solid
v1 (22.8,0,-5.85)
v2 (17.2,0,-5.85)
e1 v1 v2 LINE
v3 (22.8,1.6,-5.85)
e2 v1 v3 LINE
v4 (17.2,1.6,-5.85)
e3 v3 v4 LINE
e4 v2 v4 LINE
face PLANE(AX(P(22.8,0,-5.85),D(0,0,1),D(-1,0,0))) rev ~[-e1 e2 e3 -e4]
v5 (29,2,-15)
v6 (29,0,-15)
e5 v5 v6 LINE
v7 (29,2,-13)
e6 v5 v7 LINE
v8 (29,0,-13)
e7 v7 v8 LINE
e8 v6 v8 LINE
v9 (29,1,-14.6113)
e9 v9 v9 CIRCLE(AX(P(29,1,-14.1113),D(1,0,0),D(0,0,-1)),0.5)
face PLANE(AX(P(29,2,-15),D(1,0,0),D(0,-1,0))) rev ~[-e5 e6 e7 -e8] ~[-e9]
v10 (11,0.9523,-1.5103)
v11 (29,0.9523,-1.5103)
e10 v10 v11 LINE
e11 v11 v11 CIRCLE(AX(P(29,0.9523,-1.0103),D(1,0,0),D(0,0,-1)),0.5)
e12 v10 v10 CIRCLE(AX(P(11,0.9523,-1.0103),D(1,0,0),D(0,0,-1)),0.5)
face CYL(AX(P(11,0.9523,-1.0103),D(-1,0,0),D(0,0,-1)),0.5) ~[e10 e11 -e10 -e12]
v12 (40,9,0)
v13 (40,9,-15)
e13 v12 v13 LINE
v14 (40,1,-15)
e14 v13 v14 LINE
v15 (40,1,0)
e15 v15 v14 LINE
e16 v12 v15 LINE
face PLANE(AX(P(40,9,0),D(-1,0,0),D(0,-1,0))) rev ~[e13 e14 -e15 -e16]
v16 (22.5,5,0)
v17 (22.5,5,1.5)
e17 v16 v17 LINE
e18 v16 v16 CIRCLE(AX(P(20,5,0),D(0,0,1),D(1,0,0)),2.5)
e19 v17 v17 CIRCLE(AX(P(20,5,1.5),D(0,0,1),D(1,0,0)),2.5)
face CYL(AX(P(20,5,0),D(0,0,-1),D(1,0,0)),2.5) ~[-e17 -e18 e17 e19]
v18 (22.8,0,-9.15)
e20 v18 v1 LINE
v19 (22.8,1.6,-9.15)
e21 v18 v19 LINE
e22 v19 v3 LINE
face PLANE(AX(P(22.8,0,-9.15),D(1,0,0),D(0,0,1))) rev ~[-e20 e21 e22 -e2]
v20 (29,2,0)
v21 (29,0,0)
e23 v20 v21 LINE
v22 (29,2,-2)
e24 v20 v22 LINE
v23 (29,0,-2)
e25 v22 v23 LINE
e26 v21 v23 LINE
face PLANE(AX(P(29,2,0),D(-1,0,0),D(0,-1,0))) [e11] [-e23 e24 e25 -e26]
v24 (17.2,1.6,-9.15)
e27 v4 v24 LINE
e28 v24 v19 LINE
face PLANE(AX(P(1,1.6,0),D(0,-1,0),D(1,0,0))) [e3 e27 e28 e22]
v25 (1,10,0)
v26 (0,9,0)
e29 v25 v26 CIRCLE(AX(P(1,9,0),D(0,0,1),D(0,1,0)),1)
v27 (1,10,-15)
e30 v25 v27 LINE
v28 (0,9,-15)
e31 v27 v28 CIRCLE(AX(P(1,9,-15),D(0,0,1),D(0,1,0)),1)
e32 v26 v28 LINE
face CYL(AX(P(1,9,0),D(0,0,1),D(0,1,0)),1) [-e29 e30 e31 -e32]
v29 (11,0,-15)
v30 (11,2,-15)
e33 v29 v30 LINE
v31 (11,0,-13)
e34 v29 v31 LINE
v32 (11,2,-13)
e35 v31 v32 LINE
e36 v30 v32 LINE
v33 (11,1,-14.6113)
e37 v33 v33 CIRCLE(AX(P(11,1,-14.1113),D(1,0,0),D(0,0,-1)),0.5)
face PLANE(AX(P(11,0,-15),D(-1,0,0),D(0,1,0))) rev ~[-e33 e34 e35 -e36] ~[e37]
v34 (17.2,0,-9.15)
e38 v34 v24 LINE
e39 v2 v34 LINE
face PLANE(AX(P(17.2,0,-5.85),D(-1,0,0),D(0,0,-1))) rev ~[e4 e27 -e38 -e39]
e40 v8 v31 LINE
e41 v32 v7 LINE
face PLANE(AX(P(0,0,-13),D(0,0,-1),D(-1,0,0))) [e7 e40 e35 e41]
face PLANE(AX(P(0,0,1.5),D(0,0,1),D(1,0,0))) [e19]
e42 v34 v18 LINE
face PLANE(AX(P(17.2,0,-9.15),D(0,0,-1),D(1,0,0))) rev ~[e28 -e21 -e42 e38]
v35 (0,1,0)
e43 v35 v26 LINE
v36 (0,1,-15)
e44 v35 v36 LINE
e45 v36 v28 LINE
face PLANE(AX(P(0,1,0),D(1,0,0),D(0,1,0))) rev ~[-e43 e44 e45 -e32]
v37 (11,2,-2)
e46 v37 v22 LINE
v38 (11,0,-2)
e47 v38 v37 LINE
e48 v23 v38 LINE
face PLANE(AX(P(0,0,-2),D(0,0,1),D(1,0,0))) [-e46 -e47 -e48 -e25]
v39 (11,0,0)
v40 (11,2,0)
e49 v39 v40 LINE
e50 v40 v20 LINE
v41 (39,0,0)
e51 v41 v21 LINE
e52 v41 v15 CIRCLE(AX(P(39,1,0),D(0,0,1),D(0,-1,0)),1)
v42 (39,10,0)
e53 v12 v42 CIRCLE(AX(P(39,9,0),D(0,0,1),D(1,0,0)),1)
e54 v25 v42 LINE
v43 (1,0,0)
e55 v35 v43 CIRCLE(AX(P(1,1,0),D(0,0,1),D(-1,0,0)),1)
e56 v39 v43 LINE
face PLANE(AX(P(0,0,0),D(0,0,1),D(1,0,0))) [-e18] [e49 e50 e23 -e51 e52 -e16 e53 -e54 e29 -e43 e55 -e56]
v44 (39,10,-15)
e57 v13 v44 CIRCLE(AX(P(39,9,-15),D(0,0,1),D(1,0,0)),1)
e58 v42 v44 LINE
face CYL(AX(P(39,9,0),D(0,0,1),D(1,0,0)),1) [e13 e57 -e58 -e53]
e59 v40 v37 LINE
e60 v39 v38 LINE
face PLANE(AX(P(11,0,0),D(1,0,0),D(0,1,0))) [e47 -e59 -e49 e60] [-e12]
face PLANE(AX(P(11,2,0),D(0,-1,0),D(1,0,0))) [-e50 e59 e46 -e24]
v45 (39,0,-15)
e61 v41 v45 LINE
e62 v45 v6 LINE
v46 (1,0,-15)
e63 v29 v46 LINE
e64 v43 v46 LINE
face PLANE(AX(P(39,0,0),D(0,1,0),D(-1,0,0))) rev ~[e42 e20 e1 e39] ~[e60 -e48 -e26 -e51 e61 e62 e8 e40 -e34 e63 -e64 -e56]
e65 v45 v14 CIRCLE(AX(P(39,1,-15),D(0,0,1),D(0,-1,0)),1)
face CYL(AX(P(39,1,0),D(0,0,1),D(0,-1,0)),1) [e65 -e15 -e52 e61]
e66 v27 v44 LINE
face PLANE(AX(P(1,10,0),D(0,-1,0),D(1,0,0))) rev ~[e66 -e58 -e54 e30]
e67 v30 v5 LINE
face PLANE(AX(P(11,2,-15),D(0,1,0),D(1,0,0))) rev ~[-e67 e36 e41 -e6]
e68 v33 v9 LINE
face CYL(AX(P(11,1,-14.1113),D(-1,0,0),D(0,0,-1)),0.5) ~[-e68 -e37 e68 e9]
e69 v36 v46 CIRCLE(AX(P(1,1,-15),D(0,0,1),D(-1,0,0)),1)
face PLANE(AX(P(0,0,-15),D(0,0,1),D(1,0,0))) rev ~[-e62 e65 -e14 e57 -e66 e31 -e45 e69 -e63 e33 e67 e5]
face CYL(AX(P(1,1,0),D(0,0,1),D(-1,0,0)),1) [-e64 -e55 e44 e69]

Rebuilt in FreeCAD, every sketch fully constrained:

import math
import FreeCAD as App
import Part
import Sketcher

V = App.Vector


def add_polygon(sketch, points):
    """Adds a closed chain of lines whose ends are joined by coincident constraints."""
    first, n = sketch.GeometryCount, len(points)
    for a, b in zip(points, points[1:] + points[:1]):
        sketch.addGeometry(Part.LineSegment(App.Vector(*a, 0), App.Vector(*b, 0)), False)
    for i in range(n):
        sketch.addConstraint(Sketcher.Constraint("Coincident", first + i, 2, first + (i + 1) % n, 1))

doc = App.newDocument("Part")
body = doc.addObject("PartDesign::Body", "Body")

sketch1 = body.newObject("Sketcher::SketchObject", "Sketch")
sketch1.AttachmentSupport = (doc.getObject("XY_Plane"), [""])
sketch1.MapMode = "FlatFace"
sketch1.addGeometry([
    Part.LineSegment(V(0, 9, 0), V(0, 1, 0)),
    Part.ArcOfCircle(Part.Circle(V(1, 1, 0), V(0, 0, 1), 1), math.radians(180), math.radians(270)),
    Part.LineSegment(V(1, 0, 0), V(39, 0, 0)),
    Part.ArcOfCircle(Part.Circle(V(39, 1, 0), V(0, 0, 1), 1), math.radians(-90), math.radians(0)),
    Part.LineSegment(V(40, 1, 0), V(40, 9, 0)),
    Part.ArcOfCircle(Part.Circle(V(39, 9, 0), V(0, 0, 1), 1), math.radians(0), math.radians(90)),
    Part.LineSegment(V(39, 10, 0), V(1, 10, 0)),
    Part.ArcOfCircle(Part.Circle(V(1, 9, 0), V(0, 0, 1), 1), math.radians(90), math.radians(180)),
], False)
sketch1.addConstraint([
    Sketcher.Constraint("Tangent", 0, 2, 1, 1),
    Sketcher.Constraint("Tangent", 1, 2, 2, 1),
    Sketcher.Constraint("Tangent", 2, 2, 3, 1),
    Sketcher.Constraint("Tangent", 3, 2, 4, 1),
    Sketcher.Constraint("Tangent", 4, 2, 5, 1),
    Sketcher.Constraint("Tangent", 5, 2, 6, 1),
    Sketcher.Constraint("Tangent", 6, 2, 7, 1),
    Sketcher.Constraint("Tangent", 7, 2, 0, 1),
    Sketcher.Constraint("Vertical", 0),
    Sketcher.Constraint("Horizontal", 2),
    Sketcher.Constraint("Vertical", 4),
    Sketcher.Constraint("Horizontal", 6),
    Sketcher.Constraint("Equal", 1, 3),
    Sketcher.Constraint("Equal", 3, 5),
    Sketcher.Constraint("Equal", 5, 7),
    Sketcher.Constraint("PointOnObject", 0, 2, -2),
    Sketcher.Constraint("PointOnObject", 1, 2, -1),
    Sketcher.Constraint("Radius", 1, 1.0),
    Sketcher.Constraint("DistanceX", -1, 1, 3, 2, 40.0),
    Sketcher.Constraint("DistanceY", -1, 1, 5, 2, 10.0),
])
pad1 = body.newObject("PartDesign::Pad", "Pad")
pad1.Profile = sketch1
pad1.Length = 15
pad1.Reversed = True

sketch2 = body.newObject("Sketcher::SketchObject", "Sketch001")
sketch2.AttachmentSupport = (doc.getObject("XZ_Plane"), [""])
sketch2.MapMode = "FlatFace"
add_polygon(sketch2, [(22.8, -5.8), (17.2, -5.8), (17.2, -9.2), (22.8, -9.2)])
sketch2.addConstraint([
    Sketcher.Constraint("Horizontal", 0),
    Sketcher.Constraint("Vertical", 1),
    Sketcher.Constraint("Horizontal", 2),
    Sketcher.Constraint("Vertical", 3),
    Sketcher.Constraint("DistanceX", 0, 2, 0, 1, 5.6),
    Sketcher.Constraint("DistanceY", 1, 2, 1, 1, 3.3),
    Sketcher.Constraint("DistanceY", 0, 2, -1, 1, 5.85),
    Sketcher.Constraint("DistanceX", -1, 1, 0, 2, 17.2),
])
pocket1 = body.newObject("PartDesign::Pocket", "Pocket")
pocket1.Profile = sketch2
pocket1.Length = 1.6

sketch3 = body.newObject("Sketcher::SketchObject", "Sketch002")
sketch3.AttachmentSupport = (doc.getObject("XY_Plane"), [""])
sketch3.MapMode = "FlatFace"
sketch3.addGeometry(Part.Circle(V(20, 5, 0), V(0, 0, 1), 2.5), False)
sketch3.addConstraint([
    Sketcher.Constraint("Diameter", 0, 5.0),
    Sketcher.Constraint("DistanceY", -1, 1, 0, 3, 5.0),
    Sketcher.Constraint("DistanceX", -1, 1, 0, 3, 20.0),
])
pad2 = body.newObject("PartDesign::Pad", "Pad001")
pad2.Profile = sketch3
pad2.Length = 1.5

sketch4 = body.newObject("Sketcher::SketchObject", "Sketch003")
sketch4.AttachmentSupport = (doc.getObject("XY_Plane"), [""])
sketch4.MapMode = "FlatFace"
add_polygon(sketch4, [(11, 0), (29, 0), (29, 2), (11, 2)])
sketch4.addConstraint([
    Sketcher.Constraint("Horizontal", 0),
    Sketcher.Constraint("Vertical", 1),
    Sketcher.Constraint("Horizontal", 2),
    Sketcher.Constraint("Vertical", 3),
    Sketcher.Constraint("PointOnObject", 0, 2, -1),
    Sketcher.Constraint("DistanceX", 0, 1, 0, 2, 18.0),
    Sketcher.Constraint("DistanceY", 1, 1, 1, 2, 2.0),
    Sketcher.Constraint("DistanceX", -1, 1, 0, 2, 29.0),
])
pocket2 = body.newObject("PartDesign::Pocket", "Pocket001")
pocket2.Profile = sketch4
pocket2.Length = 2

sketch5 = body.newObject("Sketcher::SketchObject", "Sketch004")
sketch5.AttachmentSupport = (doc.getObject("XY_Plane"), [""])
sketch5.MapMode = "FlatFace"
sketch5.AttachmentOffset = App.Placement(V(0, 0, -15), App.Rotation())
add_polygon(sketch5, [(11, 0), (11, 2), (29, 2), (29, 0)])
sketch5.addConstraint([
    Sketcher.Constraint("Vertical", 0),
    Sketcher.Constraint("Horizontal", 1),
    Sketcher.Constraint("Vertical", 2),
    Sketcher.Constraint("Horizontal", 3),
    Sketcher.Constraint("PointOnObject", 2, 2, -1),
    Sketcher.Constraint("DistanceX", 1, 1, 1, 2, 18.0),
    Sketcher.Constraint("DistanceY", 0, 1, 0, 2, 2.0),
    Sketcher.Constraint("DistanceX", -1, 1, 0, 2, 11.0),
])
pocket3 = body.newObject("PartDesign::Pocket", "Pocket002")
pocket3.Profile = sketch5
pocket3.Length = 2
pocket3.Reversed = True

sketch6 = body.newObject("Sketcher::SketchObject", "Sketch005")
sketch6.AttachmentSupport = (doc.getObject("YZ_Plane"), [""])
sketch6.MapMode = "FlatFace"
sketch6.AttachmentOffset = App.Placement(V(0, 0, 11), App.Rotation())
sketch6.addGeometry(Part.Circle(V(1, -1, 0), V(0, 0, 1), 0.5), False)
sketch6.addConstraint([
    Sketcher.Constraint("Diameter", 0, 1.0),
    Sketcher.Constraint("DistanceX", -1, 1, 0, 3, 0.9523),
    Sketcher.Constraint("DistanceY", 0, 3, -1, 1, 1.0103),
])
pad3 = body.newObject("PartDesign::Pad", "Pad002")
pad3.Profile = sketch6
pad3.Length = 18

sketch7 = body.newObject("Sketcher::SketchObject", "Sketch006")
sketch7.AttachmentSupport = (doc.getObject("YZ_Plane"), [""])
sketch7.MapMode = "FlatFace"
sketch7.AttachmentOffset = App.Placement(V(0, 0, 11), App.Rotation())
sketch7.addGeometry(Part.Circle(V(1, -14.1, 0), V(0, 0, 1), 0.5), False)
sketch7.addConstraint([
    Sketcher.Constraint("Diameter", 0, 1.0),
    Sketcher.Constraint("DistanceX", -1, 1, 0, 3, 1.0),
    Sketcher.Constraint("DistanceY", 0, 3, -1, 1, 14.1113),
])
pad4 = body.newObject("PartDesign::Pad", "Pad003")
pad4.Profile = sketch7
pad4.Length = 18

doc.recompute()
